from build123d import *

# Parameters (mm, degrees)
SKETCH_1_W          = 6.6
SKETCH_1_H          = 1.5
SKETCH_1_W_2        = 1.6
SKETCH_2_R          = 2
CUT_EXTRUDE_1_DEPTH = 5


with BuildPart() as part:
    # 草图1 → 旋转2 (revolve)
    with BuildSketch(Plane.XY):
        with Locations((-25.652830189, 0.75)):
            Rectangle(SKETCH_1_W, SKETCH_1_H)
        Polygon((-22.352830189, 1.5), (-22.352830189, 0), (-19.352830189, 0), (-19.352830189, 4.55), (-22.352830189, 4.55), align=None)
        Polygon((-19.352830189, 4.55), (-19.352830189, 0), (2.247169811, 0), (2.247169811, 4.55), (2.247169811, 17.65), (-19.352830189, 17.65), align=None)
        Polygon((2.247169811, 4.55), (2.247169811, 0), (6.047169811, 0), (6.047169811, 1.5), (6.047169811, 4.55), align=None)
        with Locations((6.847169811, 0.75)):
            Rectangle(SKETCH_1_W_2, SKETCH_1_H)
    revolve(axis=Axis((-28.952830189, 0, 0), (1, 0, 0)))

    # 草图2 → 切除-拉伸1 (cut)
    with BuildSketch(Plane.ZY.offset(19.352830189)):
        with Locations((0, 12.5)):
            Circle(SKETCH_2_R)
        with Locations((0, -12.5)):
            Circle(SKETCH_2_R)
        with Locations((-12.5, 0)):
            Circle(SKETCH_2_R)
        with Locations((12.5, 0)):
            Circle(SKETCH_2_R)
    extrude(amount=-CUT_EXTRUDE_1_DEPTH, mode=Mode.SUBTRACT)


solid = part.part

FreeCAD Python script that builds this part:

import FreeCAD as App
import Part
import Sketcher

V = App.Vector
Q = App.Units.Quantity

doc = App.newDocument("Part")
body = doc.addObject("PartDesign::Body", "Body")

# Sketch on XY plane
sketch1 = body.newObject("Sketcher::SketchObject", "Sketch")
sketch1.AttachmentSupport = (doc.getObject("XY_Plane"), [""])
sketch1.MapMode = "FlatFace"
sketch1.addGeometry(Part.LineSegment(V(-28.95283, 1.5, 0), V(-28.95283, 0, 0)), False)
sketch1.addGeometry(Part.LineSegment(V(-28.95283, 0, 0), V(7.64717, 0, 0)), False)
sketch1.addGeometry(Part.LineSegment(V(7.64717, 0, 0), V(7.64717, 1.5, 0)), False)
sketch1.addGeometry(Part.LineSegment(V(7.64717, 1.5, 0), V(6.04717, 1.5, 0)), False)
sketch1.addGeometry(Part.LineSegment(V(6.04717, 1.5, 0), V(6.04717, 4.55, 0)), False)
sketch1.addGeometry(Part.LineSegment(V(6.04717, 4.55, 0), V(2.24717, 4.55, 0)), False)
sketch1.addGeometry(Part.LineSegment(V(2.24717, 4.55, 0), V(2.24717, 17.65, 0)), False)
sketch1.addGeometry(Part.LineSegment(V(2.24717, 17.65, 0), V(-19.35283, 17.65, 0)), False)
sketch1.addGeometry(Part.LineSegment(V(-19.35283, 17.65, 0), V(-19.35283, 4.55, 0)), False)
sketch1.addGeometry(Part.LineSegment(V(-19.35283, 4.55, 0), V(-22.35283, 4.55, 0)), False)
sketch1.addGeometry(Part.LineSegment(V(-22.35283, 4.55, 0), V(-22.35283, 1.5, 0)), False)
sketch1.addGeometry(Part.LineSegment(V(-22.35283, 1.5, 0), V(-28.95283, 1.5, 0)), False)
sketch1.addConstraint(Sketcher.Constraint("Coincident", 0, 2, 1, 1))
sketch1.addConstraint(Sketcher.Constraint("Coincident", 1, 2, 2, 1))
sketch1.addConstraint(Sketcher.Constraint("Coincident", 2, 2, 3, 1))
sketch1.addConstraint(Sketcher.Constraint("Coincident", 3, 2, 4, 1))
sketch1.addConstraint(Sketcher.Constraint("Coincident", 4, 2, 5, 1))
sketch1.addConstraint(Sketcher.Constraint("Coincident", 5, 2, 6, 1))
sketch1.addConstraint(Sketcher.Constraint("Coincident", 6, 2, 7, 1))
sketch1.addConstraint(Sketcher.Constraint("Coincident", 7, 2, 8, 1))
sketch1.addConstraint(Sketcher.Constraint("Coincident", 8, 2, 9, 1))
sketch1.addConstraint(Sketcher.Constraint("Coincident", 9, 2, 10, 1))
sketch1.addConstraint(Sketcher.Constraint("Coincident", 10, 2, 11, 1))
sketch1.addConstraint(Sketcher.Constraint("Coincident", 11, 2, 0, 1))
sketch1.addConstraint(Sketcher.Constraint("Vertical", 0))
sketch1.addConstraint(Sketcher.Constraint("Horizontal", 1))
sketch1.addConstraint(Sketcher.Constraint("Vertical", 2))
sketch1.addConstraint(Sketcher.Constraint("Horizontal", 3))
sketch1.addConstraint(Sketcher.Constraint("Vertical", 4))
sketch1.addConstraint(Sketcher.Constraint("Horizontal", 5))
sketch1.addConstraint(Sketcher.Constraint("Vertical", 6))
sketch1.addConstraint(Sketcher.Constraint("Horizontal", 7))
sketch1.addConstraint(Sketcher.Constraint("Vertical", 8))
sketch1.addConstraint(Sketcher.Constraint("Horizontal", 9))
sketch1.addConstraint(Sketcher.Constraint("Vertical", 10))
sketch1.addConstraint(Sketcher.Constraint("Horizontal", 11))
sketch1.addConstraint(Sketcher.Constraint("PointOnObject", 0, 2, -1))
sketch1.addConstraint(Sketcher.Constraint("Horizontal", 5, 2, 8, 2))
sketch1.addConstraint(Sketcher.Constraint("Horizontal", 3, 2, 10, 2))
sketch1.addConstraint(Sketcher.Constraint("DistanceX", 9, 2, 9, 1, Q("3 mm")))
sketch1.addConstraint(Sketcher.Constraint("DistanceX", 1, 1, 1, 2, Q("36.6 mm")))
sketch1.addConstraint(Sketcher.Constraint("DistanceX", 3, 2, 3, 1, Q("1.6 mm")))
sketch1.addConstraint(Sketcher.Constraint("DistanceX", 5, 2, 5, 1, Q("3.8 mm")))
sketch1.addConstraint(Sketcher.Constraint("DistanceX", 7, 2, 7, 1, Q("21.6 mm")))
sketch1.addConstraint(Sketcher.Constraint("DistanceY", 0, 2, 0, 1, Q("1.5 mm")))
sketch1.addConstraint(Sketcher.Constraint("DistanceY", 6, 1, 6, 2, Q("13.1 mm")))
sketch1.addConstraint(Sketcher.Constraint("DistanceY", 4, 1, 4, 2, Q("3.05 mm")))
sketch1.addConstraint(Sketcher.Constraint("DistanceX", 0, 2, -1, 1, Q("28.95283 mm")))
revolution = body.newObject("PartDesign::Revolution", "Revolution")
revolution.Profile = sketch1
revolution.ReferenceAxis = (sketch1, ["H_Axis"])
revolution.Angle = 360

# Sketch on YZ plane
sketch2 = body.newObject("Sketcher::SketchObject", "Sketch001")
sketch2.AttachmentSupport = (doc.getObject("YZ_Plane"), [""])
sketch2.MapMode = "FlatFace"
sketch2.AttachmentOffset = App.Placement(V(0, 0, -19.35283), App.Rotation())
sketch2.addGeometry(Part.Circle(V(12.5, 0, 0), V(0, 0, 1), 2), False)
sketch2.addGeometry(Part.Circle(V(-12.5, 0, 0), V(0, 0, 1), 2), False)
sketch2.addGeometry(Part.Circle(V(0, -12.5, 0), V(0, 0, 1), 2), False)
sketch2.addGeometry(Part.Circle(V(0, 12.5, 0), V(0, 0, 1), 2), False)
sketch2.addConstraint(Sketcher.Constraint("Equal", 0, 1))
sketch2.addConstraint(Sketcher.Constraint("Equal", 1, 2))
sketch2.addConstraint(Sketcher.Constraint("Equal", 2, 3))
sketch2.addConstraint(Sketcher.Constraint("Symmetric", 0, 3, 1, 3, -1, 1))
sketch2.addConstraint(Sketcher.Constraint("Symmetric", 2, 3, 3, 3, -1, 1))
sketch2.addConstraint(Sketcher.Constraint("PointOnObject", 0, 3, -1))
sketch2.addConstraint(Sketcher.Constraint("PointOnObject", 2, 3, -2))
sketch2.addConstraint(Sketcher.Constraint("Diameter", 0, Q("4 mm")))
sketch2.addConstraint(Sketcher.Constraint("DistanceX", 1, 3, 0, 3, Q("25 mm")))
sketch2.addConstraint(Sketcher.Constraint("DistanceY", 2, 3, 3, 3, Q("25 mm")))
pocket1 = body.newObject("PartDesign::Pocket", "Pocket")
pocket1.Profile = sketch2
pocket1.Length = 5
pocket1.Reversed = True

doc.recompute()
